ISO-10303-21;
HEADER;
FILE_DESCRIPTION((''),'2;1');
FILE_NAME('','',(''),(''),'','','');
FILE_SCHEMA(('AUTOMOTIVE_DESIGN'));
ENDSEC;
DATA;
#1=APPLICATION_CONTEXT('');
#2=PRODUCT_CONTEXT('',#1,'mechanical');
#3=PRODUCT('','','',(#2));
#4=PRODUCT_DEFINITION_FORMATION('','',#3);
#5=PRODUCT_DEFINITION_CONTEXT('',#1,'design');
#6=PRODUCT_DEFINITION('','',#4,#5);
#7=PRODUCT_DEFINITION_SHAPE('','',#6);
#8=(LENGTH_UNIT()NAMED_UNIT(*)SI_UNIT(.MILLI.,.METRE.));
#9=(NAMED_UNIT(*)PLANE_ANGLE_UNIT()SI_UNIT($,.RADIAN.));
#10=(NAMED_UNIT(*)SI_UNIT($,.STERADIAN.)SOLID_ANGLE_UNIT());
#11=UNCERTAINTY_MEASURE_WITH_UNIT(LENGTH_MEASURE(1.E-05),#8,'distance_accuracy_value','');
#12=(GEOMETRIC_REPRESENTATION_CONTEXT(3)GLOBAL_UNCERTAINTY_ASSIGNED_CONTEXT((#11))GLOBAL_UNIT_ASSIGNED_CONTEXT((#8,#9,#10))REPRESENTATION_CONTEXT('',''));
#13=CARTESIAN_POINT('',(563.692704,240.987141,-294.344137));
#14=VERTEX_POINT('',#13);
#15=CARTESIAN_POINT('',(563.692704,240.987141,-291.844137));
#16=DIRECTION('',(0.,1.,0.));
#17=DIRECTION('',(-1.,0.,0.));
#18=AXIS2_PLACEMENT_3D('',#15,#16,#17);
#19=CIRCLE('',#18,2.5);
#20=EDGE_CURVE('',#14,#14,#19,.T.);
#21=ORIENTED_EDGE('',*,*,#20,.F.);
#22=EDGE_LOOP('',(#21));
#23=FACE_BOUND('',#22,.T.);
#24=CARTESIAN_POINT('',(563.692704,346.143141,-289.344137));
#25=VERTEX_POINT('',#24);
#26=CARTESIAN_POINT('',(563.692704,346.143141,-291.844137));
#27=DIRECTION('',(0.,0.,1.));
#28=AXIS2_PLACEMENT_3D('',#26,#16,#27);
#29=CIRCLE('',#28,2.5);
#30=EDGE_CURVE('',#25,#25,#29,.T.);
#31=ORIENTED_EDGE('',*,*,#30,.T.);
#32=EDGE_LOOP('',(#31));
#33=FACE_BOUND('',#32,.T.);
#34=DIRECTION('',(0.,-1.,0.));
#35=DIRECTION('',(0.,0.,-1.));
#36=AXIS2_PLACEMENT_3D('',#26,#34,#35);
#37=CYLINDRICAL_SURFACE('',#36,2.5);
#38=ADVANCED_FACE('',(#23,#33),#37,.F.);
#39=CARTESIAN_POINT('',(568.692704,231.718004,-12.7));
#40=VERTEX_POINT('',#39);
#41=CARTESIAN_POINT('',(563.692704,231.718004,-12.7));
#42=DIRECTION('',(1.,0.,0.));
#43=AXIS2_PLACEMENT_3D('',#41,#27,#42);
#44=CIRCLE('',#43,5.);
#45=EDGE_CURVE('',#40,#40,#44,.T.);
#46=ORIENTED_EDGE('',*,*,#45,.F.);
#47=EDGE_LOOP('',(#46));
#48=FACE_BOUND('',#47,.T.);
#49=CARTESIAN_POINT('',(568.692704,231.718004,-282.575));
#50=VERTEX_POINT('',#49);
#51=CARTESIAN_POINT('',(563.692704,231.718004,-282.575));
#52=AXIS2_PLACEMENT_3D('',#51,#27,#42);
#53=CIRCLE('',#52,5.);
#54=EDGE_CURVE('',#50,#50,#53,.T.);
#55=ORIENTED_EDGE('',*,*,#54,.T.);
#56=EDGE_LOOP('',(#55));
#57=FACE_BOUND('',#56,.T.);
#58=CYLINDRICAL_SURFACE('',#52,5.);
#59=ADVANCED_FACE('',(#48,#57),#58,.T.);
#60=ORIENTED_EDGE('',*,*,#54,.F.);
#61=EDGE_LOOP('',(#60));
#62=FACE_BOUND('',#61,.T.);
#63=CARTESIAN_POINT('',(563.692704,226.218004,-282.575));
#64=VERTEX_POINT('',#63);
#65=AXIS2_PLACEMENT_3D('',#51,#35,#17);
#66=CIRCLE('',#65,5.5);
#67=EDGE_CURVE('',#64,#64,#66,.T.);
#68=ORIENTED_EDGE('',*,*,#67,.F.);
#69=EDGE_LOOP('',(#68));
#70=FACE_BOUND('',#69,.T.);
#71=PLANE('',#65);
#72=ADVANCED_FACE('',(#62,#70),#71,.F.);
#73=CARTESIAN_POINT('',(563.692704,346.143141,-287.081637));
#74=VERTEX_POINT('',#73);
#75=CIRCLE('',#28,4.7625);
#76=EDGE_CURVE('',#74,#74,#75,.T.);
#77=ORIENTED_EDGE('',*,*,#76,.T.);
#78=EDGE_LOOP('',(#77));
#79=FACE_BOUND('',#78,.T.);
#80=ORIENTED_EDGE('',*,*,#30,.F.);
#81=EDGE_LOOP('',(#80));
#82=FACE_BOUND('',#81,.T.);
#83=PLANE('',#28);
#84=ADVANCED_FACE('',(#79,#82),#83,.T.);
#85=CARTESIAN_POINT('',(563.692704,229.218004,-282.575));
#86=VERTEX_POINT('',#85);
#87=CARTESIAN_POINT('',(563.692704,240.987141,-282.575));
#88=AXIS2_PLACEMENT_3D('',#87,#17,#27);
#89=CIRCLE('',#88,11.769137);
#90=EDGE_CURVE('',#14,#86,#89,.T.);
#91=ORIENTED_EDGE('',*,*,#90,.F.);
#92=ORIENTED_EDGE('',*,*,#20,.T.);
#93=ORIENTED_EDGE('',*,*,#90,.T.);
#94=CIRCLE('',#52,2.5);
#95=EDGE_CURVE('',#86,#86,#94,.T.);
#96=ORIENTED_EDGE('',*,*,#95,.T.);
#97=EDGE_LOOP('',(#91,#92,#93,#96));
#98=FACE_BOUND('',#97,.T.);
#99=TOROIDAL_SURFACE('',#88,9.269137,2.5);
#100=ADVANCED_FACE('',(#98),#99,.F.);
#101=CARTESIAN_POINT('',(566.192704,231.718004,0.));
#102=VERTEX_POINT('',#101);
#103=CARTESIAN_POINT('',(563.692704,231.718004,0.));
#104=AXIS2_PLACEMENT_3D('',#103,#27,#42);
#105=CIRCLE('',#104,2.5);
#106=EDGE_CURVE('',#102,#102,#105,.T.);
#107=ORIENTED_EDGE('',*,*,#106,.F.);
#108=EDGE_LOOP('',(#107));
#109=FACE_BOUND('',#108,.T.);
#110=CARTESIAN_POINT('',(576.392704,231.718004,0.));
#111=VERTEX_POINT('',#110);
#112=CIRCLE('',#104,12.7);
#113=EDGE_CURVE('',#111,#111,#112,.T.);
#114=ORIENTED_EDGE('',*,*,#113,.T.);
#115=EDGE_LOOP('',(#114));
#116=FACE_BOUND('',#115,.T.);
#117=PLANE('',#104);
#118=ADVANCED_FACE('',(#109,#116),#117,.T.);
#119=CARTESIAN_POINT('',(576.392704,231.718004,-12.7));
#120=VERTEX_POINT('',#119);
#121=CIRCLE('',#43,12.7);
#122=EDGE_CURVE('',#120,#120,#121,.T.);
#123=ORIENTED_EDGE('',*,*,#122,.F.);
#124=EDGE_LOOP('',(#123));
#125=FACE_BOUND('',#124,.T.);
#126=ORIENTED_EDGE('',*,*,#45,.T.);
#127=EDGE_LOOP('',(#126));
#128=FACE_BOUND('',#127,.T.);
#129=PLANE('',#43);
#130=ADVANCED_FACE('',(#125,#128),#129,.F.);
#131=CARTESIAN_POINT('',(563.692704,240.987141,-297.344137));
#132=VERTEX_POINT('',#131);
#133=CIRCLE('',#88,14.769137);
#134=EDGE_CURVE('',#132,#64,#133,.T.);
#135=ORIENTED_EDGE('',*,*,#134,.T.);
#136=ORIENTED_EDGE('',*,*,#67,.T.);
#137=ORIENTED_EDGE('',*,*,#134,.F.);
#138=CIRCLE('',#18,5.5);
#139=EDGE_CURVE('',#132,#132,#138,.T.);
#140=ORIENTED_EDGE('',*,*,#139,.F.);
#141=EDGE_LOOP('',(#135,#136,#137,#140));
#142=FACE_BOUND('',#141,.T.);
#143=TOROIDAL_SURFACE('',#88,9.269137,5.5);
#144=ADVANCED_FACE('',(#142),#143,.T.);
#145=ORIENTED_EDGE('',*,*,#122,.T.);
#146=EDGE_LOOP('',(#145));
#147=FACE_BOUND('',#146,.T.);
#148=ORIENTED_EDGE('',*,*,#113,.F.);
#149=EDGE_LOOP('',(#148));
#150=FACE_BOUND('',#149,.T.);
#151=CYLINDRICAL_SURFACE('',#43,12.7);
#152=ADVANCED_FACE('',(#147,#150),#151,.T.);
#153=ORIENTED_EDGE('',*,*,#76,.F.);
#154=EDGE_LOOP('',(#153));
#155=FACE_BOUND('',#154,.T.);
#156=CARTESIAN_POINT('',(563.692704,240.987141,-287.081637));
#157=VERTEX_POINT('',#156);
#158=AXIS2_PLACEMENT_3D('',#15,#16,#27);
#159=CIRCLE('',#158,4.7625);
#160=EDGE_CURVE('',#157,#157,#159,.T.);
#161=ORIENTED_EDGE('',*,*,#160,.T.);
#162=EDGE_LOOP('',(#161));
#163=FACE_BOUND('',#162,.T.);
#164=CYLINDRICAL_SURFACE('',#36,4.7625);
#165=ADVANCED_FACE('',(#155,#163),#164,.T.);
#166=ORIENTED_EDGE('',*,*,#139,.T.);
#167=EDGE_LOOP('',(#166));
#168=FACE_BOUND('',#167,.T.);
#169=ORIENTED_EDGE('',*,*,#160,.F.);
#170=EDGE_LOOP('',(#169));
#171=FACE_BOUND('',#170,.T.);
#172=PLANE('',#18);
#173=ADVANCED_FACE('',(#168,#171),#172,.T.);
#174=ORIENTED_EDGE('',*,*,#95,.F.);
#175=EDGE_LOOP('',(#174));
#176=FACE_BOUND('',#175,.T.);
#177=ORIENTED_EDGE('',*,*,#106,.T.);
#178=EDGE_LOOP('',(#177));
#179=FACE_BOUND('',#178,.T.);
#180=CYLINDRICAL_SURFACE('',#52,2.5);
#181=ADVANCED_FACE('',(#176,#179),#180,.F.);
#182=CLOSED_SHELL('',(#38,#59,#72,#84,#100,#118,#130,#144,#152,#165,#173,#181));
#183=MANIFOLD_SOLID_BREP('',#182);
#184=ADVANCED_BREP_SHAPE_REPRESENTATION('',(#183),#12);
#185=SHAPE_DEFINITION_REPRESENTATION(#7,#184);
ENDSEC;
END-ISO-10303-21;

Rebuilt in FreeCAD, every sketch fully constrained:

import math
import FreeCAD as App
import Part
import Sketcher

V = App.Vector
Q = App.Units.Quantity

doc = App.newDocument("Part")
body = doc.addObject("PartDesign::Body", "Body")

# Sketch on XY plane
sketch1 = body.newObject("Sketcher::SketchObject", "Sketch")
sketch1.AttachmentSupport = (doc.getObject("XY_Plane"), [""])
sketch1.MapMode = "FlatFace"
sketch1.addGeometry(Part.Circle(V(564, 232, 0), V(0, 0, 1), 13), False)
sketch1.addGeometry(Part.Circle(V(564, 232, 0), V(0, 0, 1), 5), False)
sketch1.addConstraint(Sketcher.Constraint("Coincident", 1, 3, 0, 3))
sketch1.addConstraint(Sketcher.Constraint("Diameter", 0, Q("1 in")))
sketch1.addConstraint(Sketcher.Constraint("Diameter", 1, 10.0))
sketch1.addConstraint(Sketcher.Constraint("DistanceX", -1, 1, 0, 3, 563.692704))
sketch1.addConstraint(Sketcher.Constraint("DistanceY", -1, 1, 0, 3, 231.718004))
pad1 = body.newObject("PartDesign::Pad", "Pad")
pad1.Profile = sketch1
pad1.Length = Q("0.5 in")
pad1.Reversed = True

# Sketch on XY plane
sketch2 = body.newObject("Sketcher::SketchObject", "Sketch001")
sketch2.AttachmentSupport = (doc.getObject("XY_Plane"), [""])
sketch2.MapMode = "FlatFace"
sketch2.addGeometry(Part.Circle(V(563.7, 231.7, 0), V(0, 0, 1), 5), False)
sketch2.addGeometry(Part.Circle(V(563.7, 231.7, 0), V(0, 0, 1), 2.5), False)
sketch2.addConstraint(Sketcher.Constraint("Coincident", 1, 3, 0, 3))
sketch2.addConstraint(Sketcher.Constraint("Diameter", 0, 10.0))
sketch2.addConstraint(Sketcher.Constraint("Diameter", 1, 5.0))
sketch2.addConstraint(Sketcher.Constraint("DistanceX", -1, 1, 0, 3, 563.692704))
sketch2.addConstraint(Sketcher.Constraint("DistanceY", -1, 1, 0, 3, 231.718004))
pad2 = body.newObject("PartDesign::Pad", "Pad001")
pad2.Profile = sketch2
pad2.Length = Q("11.125 in")
pad2.Reversed = True

# Sketch on XY plane
sketch3 = body.newObject("Sketcher::SketchObject", "Sketch002")
sketch3.AttachmentSupport = (doc.getObject("XY_Plane"), [""])
sketch3.MapMode = "FlatFace"
sketch3.AttachmentOffset = App.Placement(V(0, 0, -11.125 * 25.4), App.Rotation())
sketch3.addGeometry(Part.Circle(V(563.7, 231.7, 0), V(0, 0, 1), 5.5), False)
sketch3.addGeometry(Part.Circle(V(563.7, 231.7, 0), V(0, 0, 1), 2.5), False)
sketch3.addConstraint(Sketcher.Constraint("Coincident", 1, 3, 0, 3))
sketch3.addConstraint(Sketcher.Constraint("Diameter", 0, 11.0))
sketch3.addConstraint(Sketcher.Constraint("Diameter", 1, 5.0))
sketch3.addConstraint(Sketcher.Constraint("DistanceX", -1, 1, 0, 3, 563.692704))
sketch3.addConstraint(Sketcher.Constraint("DistanceY", -1, 1, 0, 3, 231.718004))

# Sketch on YZ plane
sketch4 = body.newObject("Sketcher::SketchObject", "Sketch003")
sketch4.AttachmentSupport = (doc.getObject("YZ_Plane"), [""])
sketch4.MapMode = "FlatFace"
sketch4.AttachmentOffset = App.Placement(V(0, 0, 563.692704), App.Rotation())
sketch4.addGeometry(Part.ArcOfCircle(Part.Circle(V(241, -283, 0), V(0, 0, 1), 9), math.radians(180), math.radians(270)), False)
sketch4.addConstraint(Sketcher.Constraint("DistanceY", 0, 3, -1, 1, Q("11.125 in")))
sketch4.addConstraint(Sketcher.Constraint("DistanceY", 0, 1, -1, 1, Q("11.125 in")))
sketch4.addConstraint(Sketcher.Constraint("Radius", 0, 9.269137))
sketch4.addConstraint(Sketcher.Constraint("DistanceX", -1, 1, 0, 3, 240.987141))
sketch4.addConstraint(Sketcher.Constraint("DistanceX", -1, 1, 0, 2, 240.987141))
doc.recompute()

additivepipe = body.newObject("PartDesign::AdditivePipe", "AdditivePipe")
additivepipe.Profile = sketch3
additivepipe.Spine = (sketch4, ["Edge1"])

# Sketch on XZ plane
sketch5 = body.newObject("Sketcher::SketchObject", "Sketch004")
sketch5.AttachmentSupport = (doc.getObject("XZ_Plane"), [""])
sketch5.MapMode = "FlatFace"
sketch5.AttachmentOffset = App.Placement(V(0, 0, -240.987141), App.Rotation())
sketch5.addGeometry(Part.Circle(V(563.7, -291.8, 0), V(0, 0, 1), 4.8), False)
sketch5.addGeometry(Part.Circle(V(563.7, -291.8, 0), V(0, 0, 1), 2.5), False)
sketch5.addConstraint(Sketcher.Constraint("Coincident", 1, 3, 0, 3))
sketch5.addConstraint(Sketcher.Constraint("Diameter", 0, Q("0.375 in")))
sketch5.addConstraint(Sketcher.Constraint("Diameter", 1, 5.0))
sketch5.addConstraint(Sketcher.Constraint("DistanceX", -1, 1, 0, 3, 563.692704))
sketch5.addConstraint(Sketcher.Constraint("DistanceY", 0, 3, -1, 1, 291.844137))
pad3 = body.newObject("PartDesign::Pad", "Pad002")
pad3.Profile = sketch5
pad3.Length = Q("4.14 in")
pad3.Reversed = True

doc.recompute()
